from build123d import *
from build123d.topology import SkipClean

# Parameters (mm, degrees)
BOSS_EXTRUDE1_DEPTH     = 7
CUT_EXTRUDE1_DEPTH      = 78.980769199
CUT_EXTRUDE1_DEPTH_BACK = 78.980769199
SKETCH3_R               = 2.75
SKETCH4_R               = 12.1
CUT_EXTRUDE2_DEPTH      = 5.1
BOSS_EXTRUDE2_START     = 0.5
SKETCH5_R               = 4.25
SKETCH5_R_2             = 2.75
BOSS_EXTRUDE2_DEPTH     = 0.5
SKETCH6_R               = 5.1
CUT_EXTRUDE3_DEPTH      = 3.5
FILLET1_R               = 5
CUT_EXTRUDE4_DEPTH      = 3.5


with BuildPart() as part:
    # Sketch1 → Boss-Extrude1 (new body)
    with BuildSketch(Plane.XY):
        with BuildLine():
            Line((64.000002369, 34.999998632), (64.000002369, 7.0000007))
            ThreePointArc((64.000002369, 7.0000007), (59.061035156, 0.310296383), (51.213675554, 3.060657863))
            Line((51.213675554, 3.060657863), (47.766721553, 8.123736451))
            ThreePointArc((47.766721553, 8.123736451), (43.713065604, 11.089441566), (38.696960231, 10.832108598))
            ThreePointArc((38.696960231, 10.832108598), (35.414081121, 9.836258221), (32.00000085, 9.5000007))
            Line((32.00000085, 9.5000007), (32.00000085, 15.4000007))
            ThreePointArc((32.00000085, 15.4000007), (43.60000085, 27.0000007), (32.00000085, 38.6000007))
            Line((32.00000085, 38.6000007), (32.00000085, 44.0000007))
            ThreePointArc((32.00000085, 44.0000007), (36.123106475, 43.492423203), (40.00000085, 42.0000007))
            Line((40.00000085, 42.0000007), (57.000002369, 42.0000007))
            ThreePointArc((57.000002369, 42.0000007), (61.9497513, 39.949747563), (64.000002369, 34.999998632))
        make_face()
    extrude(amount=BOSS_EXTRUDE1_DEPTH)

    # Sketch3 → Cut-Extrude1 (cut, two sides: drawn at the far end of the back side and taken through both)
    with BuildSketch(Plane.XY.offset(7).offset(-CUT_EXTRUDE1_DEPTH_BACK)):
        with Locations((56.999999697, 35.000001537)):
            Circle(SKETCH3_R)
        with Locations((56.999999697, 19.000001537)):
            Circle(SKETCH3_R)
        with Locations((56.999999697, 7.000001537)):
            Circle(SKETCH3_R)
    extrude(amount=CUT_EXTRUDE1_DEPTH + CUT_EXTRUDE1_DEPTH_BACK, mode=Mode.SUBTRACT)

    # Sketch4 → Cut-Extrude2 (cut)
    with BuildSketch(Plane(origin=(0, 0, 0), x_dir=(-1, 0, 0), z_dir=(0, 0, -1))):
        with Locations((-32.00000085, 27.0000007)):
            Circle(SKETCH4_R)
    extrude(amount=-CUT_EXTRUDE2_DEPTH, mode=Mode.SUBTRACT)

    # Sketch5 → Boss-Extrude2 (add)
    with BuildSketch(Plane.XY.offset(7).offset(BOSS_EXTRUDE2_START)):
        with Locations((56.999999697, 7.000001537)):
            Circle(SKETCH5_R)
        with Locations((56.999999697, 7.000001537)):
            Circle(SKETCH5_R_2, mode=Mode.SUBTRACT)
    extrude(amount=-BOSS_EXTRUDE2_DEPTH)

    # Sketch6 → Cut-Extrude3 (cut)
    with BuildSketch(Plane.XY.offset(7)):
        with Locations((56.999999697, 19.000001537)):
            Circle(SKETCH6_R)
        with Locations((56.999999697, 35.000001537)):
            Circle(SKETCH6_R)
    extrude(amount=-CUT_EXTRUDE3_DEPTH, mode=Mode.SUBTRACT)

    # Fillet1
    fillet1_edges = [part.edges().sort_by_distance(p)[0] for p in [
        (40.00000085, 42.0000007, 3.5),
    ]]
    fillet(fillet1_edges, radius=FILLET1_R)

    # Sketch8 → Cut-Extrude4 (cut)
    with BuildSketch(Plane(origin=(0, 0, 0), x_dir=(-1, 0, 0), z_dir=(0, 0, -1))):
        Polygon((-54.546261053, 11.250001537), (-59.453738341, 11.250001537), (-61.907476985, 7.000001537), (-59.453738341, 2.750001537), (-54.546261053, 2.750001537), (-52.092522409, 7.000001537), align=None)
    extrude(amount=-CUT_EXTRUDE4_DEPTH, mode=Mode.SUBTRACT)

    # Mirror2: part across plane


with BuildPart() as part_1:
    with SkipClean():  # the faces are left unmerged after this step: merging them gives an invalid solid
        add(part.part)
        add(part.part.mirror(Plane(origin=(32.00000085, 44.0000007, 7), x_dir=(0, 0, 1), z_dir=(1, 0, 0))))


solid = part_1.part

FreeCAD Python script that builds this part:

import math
import FreeCAD as App
import Part
import Sketcher
from FreeCAD import Vector
Q = App.Units.Quantity


def edges_at(feature, points):
    """Names of the edges that pass closest to the given points."""
    edges = feature.Shape.Edges
    near = lambda p: min(range(len(edges)), key=lambda i: edges[i].distToShape(Part.Vertex(*p))[0])
    return sorted({f"Edge{near(p) + 1}" for p in points})


def add_polygon(sketch, points):
    """Adds a closed chain of lines whose ends are joined by coincident constraints."""
    first, n = sketch.GeometryCount, len(points)
    for a, b in zip(points, points[1:] + points[:1]):
        sketch.addGeometry(Part.LineSegment(App.Vector(*a, 0), App.Vector(*b, 0)), False)
    for i in range(n):
        sketch.addConstraint(Sketcher.Constraint("Coincident", first + i, 2, first + (i + 1) % n, 1))

doc = App.newDocument("Part")
body = doc.addObject("PartDesign::Body", "Body")

sketch1 = body.newObject("Sketcher::SketchObject", "Sketch")
sketch1.AttachmentSupport = (doc.getObject("XY_Plane"), [""])
sketch1.MapMode = "FlatFace"
sketch1.addGeometry([
    Part.LineSegment(Vector(64.000002, 7.000001, 0), Vector(64.000002, 34.999999, 0)),
    Part.ArcOfCircle(Part.Circle(Vector(57.000004, 35.000002, 0), Vector(0, 0, 1), 6.999999), math.radians(-0.000029), math.radians(90.000012)),
    Part.LineSegment(Vector(57.000002, 42.000001, 0), Vector(40.000001, 42.000001, 0)),
    Part.ArcOfCircle(Part.Circle(Vector(32.000001, 27.000001, 0), Vector(0, 0, 1), 17), math.radians(61.927513), math.radians(90)),
    Part.LineSegment(Vector(32.000001, 44.000001, 0), Vector(32.000001, 38.600001, 0)),
    Part.ArcOfCircle(Part.Circle(Vector(32.000001, 27.000001, 0), Vector(0, 0, 1), 11.6), math.radians(-90), math.radians(90)),
    Part.LineSegment(Vector(32.000001, 15.400001, 0), Vector(32.000001, 9.500001, 0)),
    Part.ArcOfCircle(Part.Circle(Vector(32.000001, 27.000001, 0), Vector(0, 0, 1), 17.5), math.radians(-90), math.radians(-67.500002)),
    Part.ArcOfCircle(Part.Circle(Vector(41.567086, 3.903012, 0), Vector(0, 0, 1), 7.5), math.radians(34.247112), math.radians(112.499998)),
    Part.LineSegment(Vector(47.766722, 8.123736, 0), Vector(51.213676, 3.060658, 0)),
    Part.ArcOfCircle(Part.Circle(Vector(57.000002, 7.000001, 0), Vector(0, 0, 1), 7), math.radians(-145.752888), math.radians(0)),
], False)
sketch1.addConstraint([
    Sketcher.Constraint("Tangent", 0, 2, 1, 1),
    Sketcher.Constraint("Tangent", 1, 2, 2, 1),
    Sketcher.Constraint("Coincident", 2, 2, 3, 1),
    Sketcher.Constraint("Coincident", 3, 2, 4, 1),
    Sketcher.Constraint("Coincident", 4, 2, 5, 2),
    Sketcher.Constraint("Coincident", 5, 1, 6, 1),
    Sketcher.Constraint("Coincident", 6, 2, 7, 1),
    Sketcher.Constraint("Tangent", 7, 2, 8, 2),
    Sketcher.Constraint("Tangent", 8, 1, 9, 1),
    Sketcher.Constraint("Tangent", 9, 2, 10, 1),
    Sketcher.Constraint("Tangent", 10, 2, 0, 1),
    Sketcher.Constraint("Vertical", 0),
    Sketcher.Constraint("Horizontal", 2),
    Sketcher.Constraint("Vertical", 4),
    Sketcher.Constraint("Vertical", 6),
    Sketcher.Constraint("Coincident", 5, 3, 3, 3),
    Sketcher.Constraint("Coincident", 7, 3, 3, 3),
    Sketcher.Constraint("Equal", 1, 10),
    Sketcher.Constraint("Vertical", 7, 3, 3, 2),
    Sketcher.Constraint("Vertical", 4, 2, 5, 1),
    Sketcher.Constraint("Radius", 1, 6.999999),
    Sketcher.Constraint("Radius", 3, 17.0),
    Sketcher.Constraint("Radius", 5, 11.6),
    Sketcher.Constraint("Radius", 7, 17.5),
    Sketcher.Constraint("Radius", 8, 7.5),
    Sketcher.Constraint("DistanceX", 2, 2, 2, 1, 17.000002),
    Sketcher.Constraint("DistanceX", -1, 1, 3, 3, 32.000001),
    Sketcher.Constraint("DistanceY", -1, 1, 3, 3, 27.000001),
    Sketcher.Constraint("DistanceY", -1, 1, 10, 3, 7.000001),
    Sketcher.Constraint("DistanceY", -1, 1, 0, 2, 34.999999),
    Sketcher.Constraint("Distance", 9, 6.125052),
])
pad1 = body.newObject("PartDesign::Pad", "Pad")
pad1.Profile = sketch1
pad1.Length = 7

sketch2 = body.newObject("Sketcher::SketchObject", "Sketch001")
sketch2.AttachmentSupport = (doc.getObject("XY_Plane"), [""])
sketch2.MapMode = "FlatFace"
sketch2.AttachmentOffset = App.Placement(Vector(0, 0, 7), App.Rotation())
sketch2.addGeometry([
    Part.Circle(Vector(57, 35.000002, 0), Vector(0, 0, 1), 2.75),
    Part.Circle(Vector(57, 19.000002, 0), Vector(0, 0, 1), 2.75),
    Part.Circle(Vector(57, 7.000002, 0), Vector(0, 0, 1), 2.75),
], False)
sketch2.addConstraint([
    Sketcher.Constraint("Equal", 0, 1),
    Sketcher.Constraint("Equal", 1, 2),
    Sketcher.Constraint("Vertical", 0, 3, 1, 3),
    Sketcher.Constraint("Vertical", 1, 3, 2, 3),
    Sketcher.Constraint("Diameter", 0, 5.5),
    Sketcher.Constraint("DistanceX", -1, 1, 0, 3, 57.0),
    Sketcher.Constraint("DistanceY", -1, 1, 0, 3, 35.000002),
    Sketcher.Constraint("DistanceY", -1, 1, 1, 3, 19.000002),
    Sketcher.Constraint("DistanceY", -1, 1, 2, 3, 7.000002),
])
pocket1 = body.newObject("PartDesign::Pocket", "Pocket")
pocket1.Profile = sketch2
pocket1.Type = "ThroughAll"
pocket1.Midplane = True

sketch3 = body.newObject("Sketcher::SketchObject", "Sketch002")
sketch3.AttachmentSupport = (doc.getObject("XY_Plane"), [""])
sketch3.MapMode = "FlatFace"
sketch3.addGeometry(Part.Circle(Vector(32.000001, 27.000001, 0), Vector(0, 0, 1), 12.1), False)
sketch3.addConstraint([
    Sketcher.Constraint("Diameter", 0, 24.2),
    Sketcher.Constraint("DistanceX", -1, 1, 0, 3, 32.000001),
    Sketcher.Constraint("DistanceY", -1, 1, 0, 3, 27.000001),
])
pocket2 = body.newObject("PartDesign::Pocket", "Pocket001")
pocket2.Profile = sketch3
pocket2.Length = 5.1
pocket2.Reversed = True

sketch4 = body.newObject("Sketcher::SketchObject", "Sketch003")
sketch4.AttachmentSupport = (doc.getObject("XY_Plane"), [""])
sketch4.MapMode = "FlatFace"
sketch4.AttachmentOffset = App.Placement(Vector(0, 0, 7.5), App.Rotation())
sketch4.addGeometry([
    Part.Circle(Vector(57, 7.000002, 0), Vector(0, 0, 1), 4.25),
    Part.Circle(Vector(57, 7.000002, 0), Vector(0, 0, 1), 2.75),
], False)
sketch4.addConstraint([
    Sketcher.Constraint("Coincident", 1, 3, 0, 3),
    Sketcher.Constraint("Diameter", 0, 8.5),
    Sketcher.Constraint("Diameter", 1, 5.5),
    Sketcher.Constraint("DistanceX", -1, 1, 0, 3, 57.0),
    Sketcher.Constraint("DistanceY", -1, 1, 0, 3, 7.000002),
])
pad2 = body.newObject("PartDesign::Pad", "Pad001")
pad2.Profile = sketch4
pad2.Length = 0.5
pad2.Reversed = True

sketch5 = body.newObject("Sketcher::SketchObject", "Sketch004")
sketch5.AttachmentSupport = (doc.getObject("XY_Plane"), [""])
sketch5.MapMode = "FlatFace"
sketch5.AttachmentOffset = App.Placement(Vector(0, 0, 7), App.Rotation())
sketch5.addGeometry([
    Part.Circle(Vector(57, 19.000002, 0), Vector(0, 0, 1), 5.1),
    Part.Circle(Vector(57, 35.000002, 0), Vector(0, 0, 1), 5.1),
], False)
sketch5.addConstraint([
    Sketcher.Constraint("Equal", 0, 1),
    Sketcher.Constraint("Vertical", 0, 3, 1, 3),
    Sketcher.Constraint("Diameter", 0, 10.2),
    Sketcher.Constraint("DistanceX", -1, 1, 0, 3, 57.0),
    Sketcher.Constraint("DistanceY", -1, 1, 0, 3, 19.000002),
    Sketcher.Constraint("DistanceY", -1, 1, 1, 3, 35.000002),
])
pocket3 = body.newObject("PartDesign::Pocket", "Pocket002")
pocket3.Profile = sketch5
pocket3.Length = 3.5
doc.recompute()

fillet = body.newObject("PartDesign::Fillet", "Fillet")
fillet.Base = (pocket3, edges_at(pocket3, [(40, 42, 3.5)]))
fillet.Radius = 5

sketch6 = body.newObject("Sketcher::SketchObject", "Sketch005")
sketch6.AttachmentSupport = (doc.getObject("XY_Plane"), [""])
sketch6.MapMode = "FlatFace"
add_polygon(sketch6, [(54.546261, 11.250002), (59.453738, 11.250002), (61.907477, 7.000002), (59.453738, 2.750002), (54.546261, 2.750002), (52.092522, 7.000002)])
sketch6.addConstraint([
    Sketcher.Constraint("Horizontal", 0),
    Sketcher.Constraint("Horizontal", 3),
    Sketcher.Constraint("Parallel", 1, 4),
    Sketcher.Constraint("Parallel", 2, 5),
    Sketcher.Constraint("Horizontal", 1, 2, 4, 2),
    Sketcher.Constraint("Vertical", 0, 2, 2, 2),
    Sketcher.Constraint("Vertical", 3, 2, 5, 2),
    Sketcher.Constraint("Angle", 1, Q("-60 deg")),
    Sketcher.Constraint("DistanceY", -1, 1, 1, 2, 7.000002),
    Sketcher.Constraint("DistanceY", 2, 2, 0, 2, 8.5),
    Sketcher.Constraint("DistanceX", 0, 1, 0, 2, 4.907477),
    Sketcher.Constraint("DistanceX", -1, 1, 0, 2, 59.453738),
])
pocket4 = body.newObject("PartDesign::Pocket", "Pocket003")
pocket4.Profile = sketch6
pocket4.Length = 3.5
pocket4.Reversed = True
body2 = doc.addObject("PartDesign::Body", "Body001")
doc.recompute()

body2.BaseFeature = body
doc.recompute()

mirroring = doc.addObject("Part::Mirroring", "Mirroring")
mirroring.Source = body
mirroring.Base = Vector(32.000001, 44.000001, 7)
mirroring.Normal = Vector(1, 0, 0)
body3 = doc.addObject("PartDesign::Body", "Body002")
body3.BaseFeature = mirroring
boolean = body2.newObject("PartDesign::Boolean", "Boolean")
boolean.Type = "Fuse"
boolean.addObjects([body3])
doc.recompute()
mirroring.Visibility = False

doc.recompute()
